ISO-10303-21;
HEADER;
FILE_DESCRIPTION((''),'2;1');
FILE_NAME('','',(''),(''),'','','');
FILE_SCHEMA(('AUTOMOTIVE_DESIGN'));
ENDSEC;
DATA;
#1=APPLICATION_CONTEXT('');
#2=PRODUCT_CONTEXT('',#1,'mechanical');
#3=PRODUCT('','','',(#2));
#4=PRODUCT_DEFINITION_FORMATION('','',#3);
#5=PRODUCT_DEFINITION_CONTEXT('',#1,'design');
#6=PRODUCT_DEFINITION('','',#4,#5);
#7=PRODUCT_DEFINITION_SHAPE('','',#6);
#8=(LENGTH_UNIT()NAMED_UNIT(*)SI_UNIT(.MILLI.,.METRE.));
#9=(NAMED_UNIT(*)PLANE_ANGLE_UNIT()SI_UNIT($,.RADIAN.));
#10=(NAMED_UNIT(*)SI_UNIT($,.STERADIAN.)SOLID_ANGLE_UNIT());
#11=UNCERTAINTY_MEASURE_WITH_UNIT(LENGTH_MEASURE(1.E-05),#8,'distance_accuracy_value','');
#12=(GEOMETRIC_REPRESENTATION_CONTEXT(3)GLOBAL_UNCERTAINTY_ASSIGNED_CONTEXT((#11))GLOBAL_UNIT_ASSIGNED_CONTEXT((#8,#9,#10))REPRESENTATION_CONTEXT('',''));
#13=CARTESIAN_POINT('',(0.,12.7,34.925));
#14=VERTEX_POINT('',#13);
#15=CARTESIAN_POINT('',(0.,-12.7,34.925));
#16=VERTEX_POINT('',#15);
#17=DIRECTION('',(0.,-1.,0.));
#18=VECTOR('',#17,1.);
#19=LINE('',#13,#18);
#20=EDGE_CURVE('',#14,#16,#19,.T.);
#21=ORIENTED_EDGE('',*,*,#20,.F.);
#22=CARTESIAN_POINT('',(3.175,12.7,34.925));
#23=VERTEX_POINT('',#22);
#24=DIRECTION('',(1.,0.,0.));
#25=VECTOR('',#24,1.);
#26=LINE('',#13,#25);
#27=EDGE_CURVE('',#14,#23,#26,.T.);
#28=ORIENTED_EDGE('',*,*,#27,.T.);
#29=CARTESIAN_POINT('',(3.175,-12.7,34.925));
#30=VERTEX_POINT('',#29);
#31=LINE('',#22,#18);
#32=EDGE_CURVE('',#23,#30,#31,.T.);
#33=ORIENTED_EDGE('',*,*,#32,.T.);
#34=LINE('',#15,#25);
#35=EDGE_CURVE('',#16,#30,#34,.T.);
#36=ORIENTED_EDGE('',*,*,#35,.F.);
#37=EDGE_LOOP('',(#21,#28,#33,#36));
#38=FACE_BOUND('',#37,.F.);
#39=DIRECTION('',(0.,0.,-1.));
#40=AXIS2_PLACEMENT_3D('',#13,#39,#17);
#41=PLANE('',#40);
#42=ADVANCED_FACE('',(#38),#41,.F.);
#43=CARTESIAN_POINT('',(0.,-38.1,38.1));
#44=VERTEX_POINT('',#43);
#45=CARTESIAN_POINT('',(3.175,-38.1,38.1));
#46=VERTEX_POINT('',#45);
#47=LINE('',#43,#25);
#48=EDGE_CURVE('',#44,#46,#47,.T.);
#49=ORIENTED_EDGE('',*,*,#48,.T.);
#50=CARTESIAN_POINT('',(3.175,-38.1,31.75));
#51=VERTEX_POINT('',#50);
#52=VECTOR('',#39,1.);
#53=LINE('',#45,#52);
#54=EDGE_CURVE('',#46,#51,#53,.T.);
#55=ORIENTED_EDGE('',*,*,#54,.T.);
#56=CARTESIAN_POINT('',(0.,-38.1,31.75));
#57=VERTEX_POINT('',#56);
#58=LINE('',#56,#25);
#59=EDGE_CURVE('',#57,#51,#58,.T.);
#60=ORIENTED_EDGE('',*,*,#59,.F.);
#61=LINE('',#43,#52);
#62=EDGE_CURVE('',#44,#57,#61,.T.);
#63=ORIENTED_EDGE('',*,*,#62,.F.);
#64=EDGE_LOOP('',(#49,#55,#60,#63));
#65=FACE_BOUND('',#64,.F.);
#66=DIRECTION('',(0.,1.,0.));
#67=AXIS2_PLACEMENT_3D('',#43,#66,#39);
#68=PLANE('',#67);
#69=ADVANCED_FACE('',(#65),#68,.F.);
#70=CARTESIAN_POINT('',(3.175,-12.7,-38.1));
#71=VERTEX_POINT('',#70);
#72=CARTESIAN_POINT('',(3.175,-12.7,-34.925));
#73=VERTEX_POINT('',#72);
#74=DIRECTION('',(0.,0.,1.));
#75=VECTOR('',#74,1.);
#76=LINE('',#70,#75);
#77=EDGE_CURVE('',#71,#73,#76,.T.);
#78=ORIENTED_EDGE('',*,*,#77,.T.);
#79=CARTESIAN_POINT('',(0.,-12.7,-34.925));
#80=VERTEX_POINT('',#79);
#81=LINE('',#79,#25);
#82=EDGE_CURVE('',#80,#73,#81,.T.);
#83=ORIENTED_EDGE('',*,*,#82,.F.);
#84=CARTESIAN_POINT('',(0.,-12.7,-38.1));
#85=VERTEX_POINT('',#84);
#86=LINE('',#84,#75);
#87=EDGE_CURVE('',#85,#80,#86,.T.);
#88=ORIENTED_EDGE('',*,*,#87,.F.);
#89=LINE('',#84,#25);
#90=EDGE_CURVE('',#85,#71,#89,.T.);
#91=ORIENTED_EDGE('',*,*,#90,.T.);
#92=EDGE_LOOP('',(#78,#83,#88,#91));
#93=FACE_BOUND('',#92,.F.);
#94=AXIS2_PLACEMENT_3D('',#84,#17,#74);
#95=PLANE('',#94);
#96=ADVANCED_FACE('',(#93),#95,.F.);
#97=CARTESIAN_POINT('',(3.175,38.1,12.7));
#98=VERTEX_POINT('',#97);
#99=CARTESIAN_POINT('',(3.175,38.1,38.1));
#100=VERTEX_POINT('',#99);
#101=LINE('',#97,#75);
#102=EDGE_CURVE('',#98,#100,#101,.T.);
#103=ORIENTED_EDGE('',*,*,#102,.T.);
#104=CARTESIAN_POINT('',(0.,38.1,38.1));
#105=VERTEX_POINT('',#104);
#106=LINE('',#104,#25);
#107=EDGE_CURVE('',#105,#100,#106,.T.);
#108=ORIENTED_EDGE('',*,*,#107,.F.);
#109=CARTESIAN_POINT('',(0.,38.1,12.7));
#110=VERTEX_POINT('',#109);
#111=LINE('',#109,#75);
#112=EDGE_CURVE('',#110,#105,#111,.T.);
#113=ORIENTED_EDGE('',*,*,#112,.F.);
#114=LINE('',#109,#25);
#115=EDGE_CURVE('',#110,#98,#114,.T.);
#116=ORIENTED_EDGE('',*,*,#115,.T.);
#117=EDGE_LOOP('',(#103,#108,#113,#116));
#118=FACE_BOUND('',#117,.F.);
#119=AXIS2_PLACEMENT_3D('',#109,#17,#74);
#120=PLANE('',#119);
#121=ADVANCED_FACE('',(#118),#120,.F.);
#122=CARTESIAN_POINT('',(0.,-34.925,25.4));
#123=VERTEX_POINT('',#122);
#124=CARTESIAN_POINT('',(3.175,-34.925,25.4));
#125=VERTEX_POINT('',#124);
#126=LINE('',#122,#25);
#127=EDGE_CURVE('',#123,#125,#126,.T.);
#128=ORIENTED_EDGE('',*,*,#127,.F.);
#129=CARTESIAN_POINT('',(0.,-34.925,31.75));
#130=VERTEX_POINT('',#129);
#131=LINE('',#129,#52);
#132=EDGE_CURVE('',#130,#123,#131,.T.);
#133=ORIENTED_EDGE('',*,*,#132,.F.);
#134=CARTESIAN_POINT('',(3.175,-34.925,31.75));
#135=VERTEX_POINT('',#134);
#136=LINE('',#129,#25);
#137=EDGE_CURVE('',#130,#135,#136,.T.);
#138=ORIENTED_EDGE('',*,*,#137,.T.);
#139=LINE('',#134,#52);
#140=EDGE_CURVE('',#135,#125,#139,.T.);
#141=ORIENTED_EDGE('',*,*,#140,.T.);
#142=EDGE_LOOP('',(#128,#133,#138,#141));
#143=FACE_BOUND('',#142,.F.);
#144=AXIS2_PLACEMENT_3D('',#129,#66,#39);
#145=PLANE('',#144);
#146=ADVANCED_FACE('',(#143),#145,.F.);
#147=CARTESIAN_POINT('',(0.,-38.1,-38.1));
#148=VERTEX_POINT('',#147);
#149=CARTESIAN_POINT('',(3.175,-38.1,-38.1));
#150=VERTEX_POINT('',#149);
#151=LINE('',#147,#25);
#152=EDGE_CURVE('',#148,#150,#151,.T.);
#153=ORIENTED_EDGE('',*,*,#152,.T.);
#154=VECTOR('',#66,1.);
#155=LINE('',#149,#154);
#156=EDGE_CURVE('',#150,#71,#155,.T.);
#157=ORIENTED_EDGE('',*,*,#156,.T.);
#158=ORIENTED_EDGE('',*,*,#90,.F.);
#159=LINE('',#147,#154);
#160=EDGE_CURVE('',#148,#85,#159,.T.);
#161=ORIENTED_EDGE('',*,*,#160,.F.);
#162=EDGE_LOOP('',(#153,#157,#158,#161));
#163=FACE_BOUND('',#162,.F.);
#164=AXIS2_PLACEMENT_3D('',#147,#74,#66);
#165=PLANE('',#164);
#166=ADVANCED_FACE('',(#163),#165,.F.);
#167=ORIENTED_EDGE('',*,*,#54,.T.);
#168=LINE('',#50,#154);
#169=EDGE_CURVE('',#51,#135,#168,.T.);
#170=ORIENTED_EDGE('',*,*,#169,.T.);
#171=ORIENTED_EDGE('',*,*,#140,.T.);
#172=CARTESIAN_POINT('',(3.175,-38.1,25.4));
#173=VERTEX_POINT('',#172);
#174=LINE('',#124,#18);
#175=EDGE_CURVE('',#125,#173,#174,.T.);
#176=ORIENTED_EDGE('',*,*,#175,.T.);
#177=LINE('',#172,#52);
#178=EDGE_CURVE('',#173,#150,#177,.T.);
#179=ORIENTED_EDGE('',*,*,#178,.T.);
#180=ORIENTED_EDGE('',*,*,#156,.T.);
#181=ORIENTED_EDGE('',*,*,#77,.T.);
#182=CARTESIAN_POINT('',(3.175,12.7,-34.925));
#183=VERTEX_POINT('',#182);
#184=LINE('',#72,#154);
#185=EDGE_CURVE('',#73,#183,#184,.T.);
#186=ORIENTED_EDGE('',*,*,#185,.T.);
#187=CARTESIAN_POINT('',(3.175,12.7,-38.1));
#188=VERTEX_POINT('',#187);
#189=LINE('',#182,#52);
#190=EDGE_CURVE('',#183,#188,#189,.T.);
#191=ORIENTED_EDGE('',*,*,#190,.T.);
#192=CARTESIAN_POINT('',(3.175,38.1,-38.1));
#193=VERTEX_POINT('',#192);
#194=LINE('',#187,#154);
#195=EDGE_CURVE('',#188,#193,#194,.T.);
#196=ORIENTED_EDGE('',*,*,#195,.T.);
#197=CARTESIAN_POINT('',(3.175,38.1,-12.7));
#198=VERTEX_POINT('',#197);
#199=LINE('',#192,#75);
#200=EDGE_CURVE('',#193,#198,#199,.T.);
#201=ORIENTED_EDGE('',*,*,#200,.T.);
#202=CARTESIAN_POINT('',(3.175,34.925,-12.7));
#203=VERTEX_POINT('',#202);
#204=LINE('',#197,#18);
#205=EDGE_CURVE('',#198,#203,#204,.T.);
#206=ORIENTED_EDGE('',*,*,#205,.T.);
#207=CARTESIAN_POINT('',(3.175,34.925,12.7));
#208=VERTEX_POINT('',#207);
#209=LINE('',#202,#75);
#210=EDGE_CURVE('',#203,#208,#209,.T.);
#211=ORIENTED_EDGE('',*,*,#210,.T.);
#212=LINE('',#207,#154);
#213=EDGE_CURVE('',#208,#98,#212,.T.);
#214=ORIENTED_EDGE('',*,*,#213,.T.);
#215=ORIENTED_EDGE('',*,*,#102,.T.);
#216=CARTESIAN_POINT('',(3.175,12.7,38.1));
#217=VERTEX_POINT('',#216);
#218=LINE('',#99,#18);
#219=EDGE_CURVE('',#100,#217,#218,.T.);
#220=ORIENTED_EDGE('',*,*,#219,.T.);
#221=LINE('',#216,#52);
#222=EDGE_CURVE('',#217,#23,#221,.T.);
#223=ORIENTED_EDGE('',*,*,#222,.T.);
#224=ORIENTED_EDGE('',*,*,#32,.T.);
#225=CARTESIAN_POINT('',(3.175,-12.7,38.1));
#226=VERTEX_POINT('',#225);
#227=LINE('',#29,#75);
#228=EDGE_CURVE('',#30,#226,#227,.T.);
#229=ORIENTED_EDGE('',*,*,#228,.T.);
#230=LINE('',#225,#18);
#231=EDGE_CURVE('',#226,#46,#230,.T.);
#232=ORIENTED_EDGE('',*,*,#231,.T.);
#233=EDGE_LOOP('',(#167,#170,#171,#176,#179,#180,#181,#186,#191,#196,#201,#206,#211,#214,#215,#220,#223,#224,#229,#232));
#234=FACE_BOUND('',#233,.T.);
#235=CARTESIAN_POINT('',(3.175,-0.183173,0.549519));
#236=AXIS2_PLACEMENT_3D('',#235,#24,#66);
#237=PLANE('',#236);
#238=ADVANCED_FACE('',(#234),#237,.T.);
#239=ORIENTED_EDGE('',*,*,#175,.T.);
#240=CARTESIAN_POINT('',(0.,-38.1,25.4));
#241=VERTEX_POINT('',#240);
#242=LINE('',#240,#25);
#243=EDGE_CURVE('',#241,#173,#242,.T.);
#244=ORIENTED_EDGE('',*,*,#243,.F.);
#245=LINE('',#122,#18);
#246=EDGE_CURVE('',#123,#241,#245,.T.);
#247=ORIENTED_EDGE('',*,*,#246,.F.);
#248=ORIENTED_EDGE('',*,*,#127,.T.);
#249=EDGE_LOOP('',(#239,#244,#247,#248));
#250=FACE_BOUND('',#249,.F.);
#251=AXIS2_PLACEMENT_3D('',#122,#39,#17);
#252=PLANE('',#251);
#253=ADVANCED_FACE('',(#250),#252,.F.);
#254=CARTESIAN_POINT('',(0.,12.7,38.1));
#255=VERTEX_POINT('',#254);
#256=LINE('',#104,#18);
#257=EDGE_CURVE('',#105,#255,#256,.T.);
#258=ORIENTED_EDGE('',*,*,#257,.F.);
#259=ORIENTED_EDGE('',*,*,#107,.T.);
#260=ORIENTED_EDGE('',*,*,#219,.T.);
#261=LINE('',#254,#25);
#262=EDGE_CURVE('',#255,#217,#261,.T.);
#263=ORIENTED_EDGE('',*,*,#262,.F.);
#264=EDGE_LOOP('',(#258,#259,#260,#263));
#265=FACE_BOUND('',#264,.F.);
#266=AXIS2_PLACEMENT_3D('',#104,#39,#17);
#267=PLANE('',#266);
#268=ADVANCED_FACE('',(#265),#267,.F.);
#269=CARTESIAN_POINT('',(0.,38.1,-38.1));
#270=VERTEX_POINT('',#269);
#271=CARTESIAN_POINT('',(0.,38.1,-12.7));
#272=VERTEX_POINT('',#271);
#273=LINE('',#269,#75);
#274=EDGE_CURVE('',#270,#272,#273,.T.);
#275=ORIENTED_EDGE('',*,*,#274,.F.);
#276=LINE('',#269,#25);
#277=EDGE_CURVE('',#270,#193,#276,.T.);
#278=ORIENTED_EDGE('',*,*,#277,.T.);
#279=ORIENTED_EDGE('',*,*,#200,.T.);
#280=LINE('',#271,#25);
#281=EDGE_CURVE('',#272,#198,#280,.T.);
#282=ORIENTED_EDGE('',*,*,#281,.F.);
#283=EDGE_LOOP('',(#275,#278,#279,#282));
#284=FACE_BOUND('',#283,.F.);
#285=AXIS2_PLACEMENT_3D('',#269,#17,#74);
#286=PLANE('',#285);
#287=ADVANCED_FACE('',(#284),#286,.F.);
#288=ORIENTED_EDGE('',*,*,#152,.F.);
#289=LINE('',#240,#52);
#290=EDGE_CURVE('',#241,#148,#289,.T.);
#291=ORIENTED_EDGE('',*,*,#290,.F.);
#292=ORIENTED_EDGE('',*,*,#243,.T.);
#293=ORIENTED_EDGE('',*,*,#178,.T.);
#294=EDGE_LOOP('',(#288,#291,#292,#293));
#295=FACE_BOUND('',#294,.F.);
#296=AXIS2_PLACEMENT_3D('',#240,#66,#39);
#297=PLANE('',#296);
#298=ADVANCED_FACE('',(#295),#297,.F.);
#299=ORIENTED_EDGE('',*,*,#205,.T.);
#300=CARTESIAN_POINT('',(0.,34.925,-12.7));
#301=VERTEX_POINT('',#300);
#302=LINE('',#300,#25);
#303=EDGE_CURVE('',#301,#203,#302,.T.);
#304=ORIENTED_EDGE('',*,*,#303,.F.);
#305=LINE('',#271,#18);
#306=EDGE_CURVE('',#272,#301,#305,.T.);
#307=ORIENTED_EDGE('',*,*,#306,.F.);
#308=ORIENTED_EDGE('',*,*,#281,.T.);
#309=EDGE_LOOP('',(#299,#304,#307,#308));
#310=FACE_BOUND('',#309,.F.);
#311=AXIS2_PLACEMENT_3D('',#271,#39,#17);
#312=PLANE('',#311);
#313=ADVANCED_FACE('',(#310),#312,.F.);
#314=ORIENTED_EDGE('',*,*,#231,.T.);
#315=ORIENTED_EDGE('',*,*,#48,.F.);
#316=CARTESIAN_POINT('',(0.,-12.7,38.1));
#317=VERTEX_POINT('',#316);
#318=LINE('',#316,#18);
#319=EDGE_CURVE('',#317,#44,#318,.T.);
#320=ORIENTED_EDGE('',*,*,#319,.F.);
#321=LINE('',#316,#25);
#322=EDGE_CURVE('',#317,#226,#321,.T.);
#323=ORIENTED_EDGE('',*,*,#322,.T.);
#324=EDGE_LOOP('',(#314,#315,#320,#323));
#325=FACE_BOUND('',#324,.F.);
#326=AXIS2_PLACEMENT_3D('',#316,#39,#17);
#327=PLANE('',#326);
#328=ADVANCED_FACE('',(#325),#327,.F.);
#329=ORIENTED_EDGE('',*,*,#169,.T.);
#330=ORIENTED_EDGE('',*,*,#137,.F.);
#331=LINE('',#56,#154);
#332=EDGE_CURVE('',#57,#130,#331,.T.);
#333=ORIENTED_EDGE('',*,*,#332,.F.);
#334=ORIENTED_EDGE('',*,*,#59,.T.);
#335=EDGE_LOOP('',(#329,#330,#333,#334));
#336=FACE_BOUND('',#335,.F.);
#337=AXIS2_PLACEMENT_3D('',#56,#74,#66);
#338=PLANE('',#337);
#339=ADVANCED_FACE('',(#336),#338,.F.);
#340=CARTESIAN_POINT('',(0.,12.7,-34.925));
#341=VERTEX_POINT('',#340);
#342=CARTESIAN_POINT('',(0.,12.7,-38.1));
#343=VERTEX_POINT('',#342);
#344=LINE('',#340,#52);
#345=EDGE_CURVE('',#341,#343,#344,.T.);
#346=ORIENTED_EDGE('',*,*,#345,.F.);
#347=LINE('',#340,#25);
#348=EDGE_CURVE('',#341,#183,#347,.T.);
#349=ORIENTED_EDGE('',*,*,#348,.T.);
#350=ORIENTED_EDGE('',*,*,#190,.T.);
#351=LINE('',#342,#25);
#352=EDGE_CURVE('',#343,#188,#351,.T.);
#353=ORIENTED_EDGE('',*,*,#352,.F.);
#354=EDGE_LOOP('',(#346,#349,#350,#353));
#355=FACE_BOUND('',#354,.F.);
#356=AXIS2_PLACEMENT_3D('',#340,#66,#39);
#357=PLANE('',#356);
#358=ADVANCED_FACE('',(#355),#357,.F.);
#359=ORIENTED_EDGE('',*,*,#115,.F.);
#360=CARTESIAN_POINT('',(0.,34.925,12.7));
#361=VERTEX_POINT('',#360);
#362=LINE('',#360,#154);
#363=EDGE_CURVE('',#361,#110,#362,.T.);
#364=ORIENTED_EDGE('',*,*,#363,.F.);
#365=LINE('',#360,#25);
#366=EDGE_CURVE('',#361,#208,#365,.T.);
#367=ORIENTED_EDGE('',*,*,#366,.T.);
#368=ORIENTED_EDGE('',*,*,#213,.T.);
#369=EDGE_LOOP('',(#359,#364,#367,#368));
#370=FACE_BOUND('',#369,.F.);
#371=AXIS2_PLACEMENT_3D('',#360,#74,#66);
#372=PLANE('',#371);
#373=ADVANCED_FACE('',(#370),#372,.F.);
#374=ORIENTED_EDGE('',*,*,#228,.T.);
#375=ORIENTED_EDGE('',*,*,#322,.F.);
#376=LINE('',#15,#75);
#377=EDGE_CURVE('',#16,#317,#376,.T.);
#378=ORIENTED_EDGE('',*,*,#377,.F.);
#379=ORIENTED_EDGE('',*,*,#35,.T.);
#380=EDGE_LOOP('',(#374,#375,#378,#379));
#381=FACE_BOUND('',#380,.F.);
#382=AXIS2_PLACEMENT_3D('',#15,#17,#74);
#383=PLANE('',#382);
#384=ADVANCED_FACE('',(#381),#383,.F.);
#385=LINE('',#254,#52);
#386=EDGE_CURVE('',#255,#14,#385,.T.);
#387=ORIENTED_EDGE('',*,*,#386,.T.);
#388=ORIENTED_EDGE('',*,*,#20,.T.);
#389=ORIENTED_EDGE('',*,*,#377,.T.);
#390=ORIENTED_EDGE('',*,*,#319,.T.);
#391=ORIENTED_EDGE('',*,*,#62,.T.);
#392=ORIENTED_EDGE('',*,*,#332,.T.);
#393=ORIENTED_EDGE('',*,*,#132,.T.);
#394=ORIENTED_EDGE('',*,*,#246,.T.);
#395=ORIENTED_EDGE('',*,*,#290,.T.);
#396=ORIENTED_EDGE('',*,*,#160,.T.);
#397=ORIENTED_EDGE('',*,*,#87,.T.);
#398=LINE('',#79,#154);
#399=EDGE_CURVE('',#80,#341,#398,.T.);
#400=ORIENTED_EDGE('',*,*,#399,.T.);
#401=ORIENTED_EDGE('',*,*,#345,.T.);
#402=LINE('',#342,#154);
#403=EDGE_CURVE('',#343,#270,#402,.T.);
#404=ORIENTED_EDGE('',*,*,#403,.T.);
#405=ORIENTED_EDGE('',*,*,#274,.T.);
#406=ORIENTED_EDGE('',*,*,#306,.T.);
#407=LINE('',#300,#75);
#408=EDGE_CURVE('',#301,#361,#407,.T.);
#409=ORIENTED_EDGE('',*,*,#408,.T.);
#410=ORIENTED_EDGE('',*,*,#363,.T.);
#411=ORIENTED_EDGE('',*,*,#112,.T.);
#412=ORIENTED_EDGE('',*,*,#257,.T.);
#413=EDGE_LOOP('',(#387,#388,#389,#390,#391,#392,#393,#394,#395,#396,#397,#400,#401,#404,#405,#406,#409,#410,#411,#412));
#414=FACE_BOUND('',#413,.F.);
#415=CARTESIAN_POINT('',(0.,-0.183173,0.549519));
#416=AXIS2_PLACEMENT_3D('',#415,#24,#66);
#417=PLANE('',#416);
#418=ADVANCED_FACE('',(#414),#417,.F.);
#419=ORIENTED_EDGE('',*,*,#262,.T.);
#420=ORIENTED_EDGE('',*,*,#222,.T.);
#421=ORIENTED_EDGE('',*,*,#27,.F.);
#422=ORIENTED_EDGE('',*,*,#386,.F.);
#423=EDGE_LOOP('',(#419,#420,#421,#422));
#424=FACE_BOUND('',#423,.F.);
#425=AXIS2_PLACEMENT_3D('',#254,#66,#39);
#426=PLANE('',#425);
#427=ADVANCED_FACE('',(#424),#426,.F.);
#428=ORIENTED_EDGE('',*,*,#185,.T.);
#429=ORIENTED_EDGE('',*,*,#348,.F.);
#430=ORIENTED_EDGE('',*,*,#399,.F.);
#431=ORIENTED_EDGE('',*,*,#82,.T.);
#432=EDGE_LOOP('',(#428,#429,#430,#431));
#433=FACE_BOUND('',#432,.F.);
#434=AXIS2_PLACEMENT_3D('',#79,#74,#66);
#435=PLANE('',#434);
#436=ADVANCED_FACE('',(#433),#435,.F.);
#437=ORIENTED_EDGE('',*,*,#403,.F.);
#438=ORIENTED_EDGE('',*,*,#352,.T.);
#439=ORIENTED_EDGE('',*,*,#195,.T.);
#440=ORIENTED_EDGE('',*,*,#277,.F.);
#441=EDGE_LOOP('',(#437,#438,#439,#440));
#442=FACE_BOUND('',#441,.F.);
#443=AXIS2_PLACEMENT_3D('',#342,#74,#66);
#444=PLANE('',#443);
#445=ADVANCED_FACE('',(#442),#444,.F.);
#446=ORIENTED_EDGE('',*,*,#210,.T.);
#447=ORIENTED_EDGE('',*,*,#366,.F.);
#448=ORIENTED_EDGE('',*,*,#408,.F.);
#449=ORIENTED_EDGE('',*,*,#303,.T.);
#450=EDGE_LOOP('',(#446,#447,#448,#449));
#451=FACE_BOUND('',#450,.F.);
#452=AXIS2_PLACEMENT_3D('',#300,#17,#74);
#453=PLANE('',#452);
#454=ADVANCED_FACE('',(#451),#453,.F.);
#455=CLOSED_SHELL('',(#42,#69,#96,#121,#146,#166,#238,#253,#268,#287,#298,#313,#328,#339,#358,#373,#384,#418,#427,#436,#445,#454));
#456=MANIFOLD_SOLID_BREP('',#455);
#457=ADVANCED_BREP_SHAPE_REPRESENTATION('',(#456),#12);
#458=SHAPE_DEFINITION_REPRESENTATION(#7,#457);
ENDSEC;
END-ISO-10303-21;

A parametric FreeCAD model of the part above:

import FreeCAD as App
import Part
import Sketcher

V = App.Vector
Q = App.Units.Quantity

doc = App.newDocument("Part")
body = doc.addObject("PartDesign::Body", "Body")

# Sketch on YZ plane
sketch1 = body.newObject("Sketcher::SketchObject", "Sketch")
sketch1.AttachmentSupport = (doc.getObject("YZ_Plane"), [""])
sketch1.MapMode = "FlatFace"
sketch1.addGeometry([
    Part.LineSegment(V(12.7, -38.1, 0), V(38.1, -38.1, 0)),  # 0
    Part.LineSegment(V(38.1, -38.1, 0), V(38.1, -12.7, 0)),  # 1
    Part.LineSegment(V(38.1, -12.7, 0), V(34.9, -12.7, 0)),  # 2
    Part.LineSegment(V(34.9, -12.7, 0), V(34.9, 12.7, 0)),  # 3
    Part.LineSegment(V(34.9, 12.7, 0), V(38.1, 12.7, 0)),  # 4
    Part.LineSegment(V(38.1, 12.7, 0), V(38.1, 38.1, 0)),  # 5
    Part.LineSegment(V(38.1, 38.1, 0), V(12.7, 38.1, 0)),  # 6
    Part.LineSegment(V(12.7, 38.1, 0), V(12.7, 34.9, 0)),  # 7
    Part.LineSegment(V(12.7, 34.9, 0), V(-12.7, 34.9, 0)),  # 8
    Part.LineSegment(V(-12.7, 34.9, 0), V(-12.7, 38.1, 0)),  # 9
    Part.LineSegment(V(-12.7, 38.1, 0), V(-38.1, 38.1, 0)),  # 10
    Part.LineSegment(V(-38.1, 38.1, 0), V(-38.1, 31.8, 0)),  # 11
    Part.LineSegment(V(-38.1, 31.8, 0), V(-34.9, 31.8, 0)),  # 12
    Part.LineSegment(V(-34.9, 31.8, 0), V(-34.9, 25.4, 0)),  # 13
    Part.LineSegment(V(-34.9, 25.4, 0), V(-38.1, 25.4, 0)),  # 14
    Part.LineSegment(V(-38.1, 25.4, 0), V(-38.1, -38.1, 0)),  # 15
    Part.LineSegment(V(-38.1, -38.1, 0), V(-12.7, -38.1, 0)),  # 16
    Part.LineSegment(V(-12.7, -38.1, 0), V(-12.7, -34.9, 0)),  # 17
    Part.LineSegment(V(-12.7, -34.9, 0), V(12.7, -34.9, 0)),  # 18
    Part.LineSegment(V(12.7, -34.9, 0), V(12.7, -38.1, 0)),  # 19
], False)
sketch1.addConstraint([
    Sketcher.Constraint("Coincident", 0, 2, 1, 1),
    Sketcher.Constraint("Coincident", 1, 2, 2, 1),
    Sketcher.Constraint("Coincident", 2, 2, 3, 1),
    Sketcher.Constraint("Coincident", 3, 2, 4, 1),
    Sketcher.Constraint("Coincident", 4, 2, 5, 1),
    Sketcher.Constraint("Coincident", 5, 2, 6, 1),
    Sketcher.Constraint("Coincident", 6, 2, 7, 1),
    Sketcher.Constraint("Coincident", 7, 2, 8, 1),
    Sketcher.Constraint("Coincident", 8, 2, 9, 1),
    Sketcher.Constraint("Coincident", 9, 2, 10, 1),
    Sketcher.Constraint("Coincident", 10, 2, 11, 1),
    Sketcher.Constraint("Coincident", 11, 2, 12, 1),
    Sketcher.Constraint("Coincident", 12, 2, 13, 1),
    Sketcher.Constraint("Coincident", 13, 2, 14, 1),
    Sketcher.Constraint("Coincident", 14, 2, 15, 1),
    Sketcher.Constraint("Coincident", 15, 2, 16, 1),
    Sketcher.Constraint("Coincident", 16, 2, 17, 1),
    Sketcher.Constraint("Coincident", 17, 2, 18, 1),
    Sketcher.Constraint("Coincident", 18, 2, 19, 1),
    Sketcher.Constraint("Coincident", 19, 2, 0, 1),
    Sketcher.Constraint("Horizontal", 0),
    Sketcher.Constraint("Vertical", 1),
    Sketcher.Constraint("Horizontal", 2),
    Sketcher.Constraint("Vertical", 3),
    Sketcher.Constraint("Horizontal", 4),
    Sketcher.Constraint("Vertical", 5),
    Sketcher.Constraint("Horizontal", 6),
    Sketcher.Constraint("Vertical", 7),
    Sketcher.Constraint("Horizontal", 8),
    Sketcher.Constraint("Vertical", 9),
    Sketcher.Constraint("Horizontal", 10),
    Sketcher.Constraint("Vertical", 11),
    Sketcher.Constraint("Horizontal", 12),
    Sketcher.Constraint("Vertical", 13),
    Sketcher.Constraint("Horizontal", 14),
    Sketcher.Constraint("Vertical", 15),
    Sketcher.Constraint("Horizontal", 16),
    Sketcher.Constraint("Vertical", 17),
    Sketcher.Constraint("Horizontal", 18),
    Sketcher.Constraint("Vertical", 19),
    Sketcher.Constraint("Symmetric", 0, 2, 10, 2, -1, 1),
    Sketcher.Constraint("Symmetric", 5, 2, 15, 2, -1, 1),
    Sketcher.Constraint("Symmetric", 7, 2, 17, 2, -1, 1),
    Sketcher.Constraint("Symmetric", 6, 2, 9, 2, -2),
    Sketcher.Constraint("Symmetric", 1, 2, 4, 2, -1),
    Sketcher.Constraint("Vertical", 7, 2, 18, 2),
    Sketcher.Constraint("Equal", 6, 8),
    Sketcher.Constraint("Equal", 4, 12),
    Sketcher.Constraint("Equal", 18, 1),
    Sketcher.Constraint("Equal", 1, 3),
    Sketcher.Constraint("Equal", 14, 7),
    Sketcher.Constraint("Equal", 11, 13),
    Sketcher.Constraint("DistanceX", 0, 1, 0, 2, Q("1 in")),
    Sketcher.Constraint("DistanceY", 15, 2, 15, 1, Q("2.5 in")),
    Sketcher.Constraint("DistanceX", 2, 2, 2, 1, Q("0.125 in")),
])
pad1 = body.newObject("PartDesign::Pad", "Pad")
pad1.Profile = sketch1
pad1.Length = Q("0.125 in")

doc.recompute()
